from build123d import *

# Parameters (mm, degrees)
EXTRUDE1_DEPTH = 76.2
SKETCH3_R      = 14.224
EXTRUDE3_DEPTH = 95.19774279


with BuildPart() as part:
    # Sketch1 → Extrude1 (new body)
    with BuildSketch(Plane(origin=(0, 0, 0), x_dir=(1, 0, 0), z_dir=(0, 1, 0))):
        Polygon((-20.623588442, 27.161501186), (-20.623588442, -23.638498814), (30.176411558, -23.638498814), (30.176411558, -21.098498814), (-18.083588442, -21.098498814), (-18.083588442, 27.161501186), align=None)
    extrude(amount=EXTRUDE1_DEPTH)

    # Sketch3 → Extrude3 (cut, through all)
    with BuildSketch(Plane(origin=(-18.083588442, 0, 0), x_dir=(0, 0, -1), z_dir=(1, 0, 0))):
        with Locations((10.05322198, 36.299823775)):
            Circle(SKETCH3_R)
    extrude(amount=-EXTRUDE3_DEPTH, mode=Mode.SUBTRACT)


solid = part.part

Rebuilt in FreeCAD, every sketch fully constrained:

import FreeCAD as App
import Part
import Sketcher
Q = App.Units.Quantity

doc = App.newDocument("Part")
params = doc.addObject("Spreadsheet::Sheet", "Params")
for row, (alias, value) in enumerate([
    ("sketch1_width", "2 in"),
    ("sketch1_width2", "1.9 in"),
    ("pad1_length", "3 in"),
    ("sketch2_diameter", "1.12 in"),
], start=1):
    params.set(f"A{row}", alias)
    params.set(f"B{row}", "=" + value)
    params.setAlias(f"B{row}", alias)

body = doc.addObject("PartDesign::Body", "Body")

sketch1 = body.newObject("Sketcher::SketchObject", "Sketch")
sketch1.AttachmentSupport = (doc.getObject("XZ_Plane"), [""])
sketch1.MapMode = "FlatFace"
sketch1.addGeometry([
    Part.LineSegment(App.Vector(-20.6, -27.2, 0), App.Vector(-20.6, 23.6, 0)),
    Part.LineSegment(App.Vector(-20.6, 23.6, 0), App.Vector(30.2, 23.6, 0)),
    Part.LineSegment(App.Vector(30.2, 23.6, 0), App.Vector(30.2, 21.1, 0)),
    Part.LineSegment(App.Vector(30.2, 21.1, 0), App.Vector(-18.1, 21.1, 0)),
    Part.LineSegment(App.Vector(-18.1, 21.1, 0), App.Vector(-18.1, -27.2, 0)),
    Part.LineSegment(App.Vector(-18.1, -27.2, 0), App.Vector(-20.6, -27.2, 0)),
], False)
sketch1.addConstraint([
    Sketcher.Constraint("Coincident", 0, 2, 1, 1),
    Sketcher.Constraint("Coincident", 1, 2, 2, 1),
    Sketcher.Constraint("Coincident", 2, 2, 3, 1),
    Sketcher.Constraint("Coincident", 3, 2, 4, 1),
    Sketcher.Constraint("Coincident", 4, 2, 5, 1),
    Sketcher.Constraint("Coincident", 5, 2, 0, 1),
    Sketcher.Constraint("Vertical", 0),
    Sketcher.Constraint("Horizontal", 1),
    Sketcher.Constraint("Vertical", 2),
    Sketcher.Constraint("Horizontal", 3),
    Sketcher.Constraint("Vertical", 4),
    Sketcher.Constraint("Horizontal", 5),
    Sketcher.Constraint("Equal", 1, 0),
    Sketcher.Constraint("Equal", 5, 2),
    Sketcher.Constraint("DistanceX", 1, 1, 1, 2, Q("2 in")),
    Sketcher.Constraint("DistanceX", 3, 2, 3, 1, Q("1.9 in")),
    Sketcher.Constraint("DistanceY", -1, 1, 0, 2, Q("23.638499 mm")),
    Sketcher.Constraint("DistanceX", 0, 2, -1, 1, Q("20.623588 mm")),
])
sketch1.setExpression("Constraints[14]", "Params.sketch1_width")
sketch1.setExpression("Constraints[15]", "Params.sketch1_width2")
pad1 = body.newObject("PartDesign::Pad", "Pad")
pad1.Profile = sketch1
pad1.setExpression("Length", "Params.pad1_length")
pad1.Reversed = True

sketch2 = body.newObject("Sketcher::SketchObject", "Sketch001")
sketch2.AttachmentSupport = (doc.getObject("YZ_Plane"), [""])
sketch2.MapMode = "FlatFace"
sketch2.AttachmentOffset = App.Placement(App.Vector(0, 0, -18.083588), App.Rotation())
sketch2.addGeometry(Part.Circle(App.Vector(36, -10, 0), App.Vector(0, 0, 1), 14), False)
sketch2.addConstraint([
    Sketcher.Constraint("Diameter", 0, Q("1.12 in")),
    Sketcher.Constraint("DistanceY", 0, 3, -1, 1, Q("10.053222 mm")),
    Sketcher.Constraint("DistanceX", -1, 1, 0, 3, Q("36.299824 mm")),
])
sketch2.setExpression("Constraints[0]", "Params.sketch2_diameter")
pocket1 = body.newObject("PartDesign::Pocket", "Pocket")
pocket1.Profile = sketch2
pocket1.Type = "ThroughAll"

doc.recompute()
